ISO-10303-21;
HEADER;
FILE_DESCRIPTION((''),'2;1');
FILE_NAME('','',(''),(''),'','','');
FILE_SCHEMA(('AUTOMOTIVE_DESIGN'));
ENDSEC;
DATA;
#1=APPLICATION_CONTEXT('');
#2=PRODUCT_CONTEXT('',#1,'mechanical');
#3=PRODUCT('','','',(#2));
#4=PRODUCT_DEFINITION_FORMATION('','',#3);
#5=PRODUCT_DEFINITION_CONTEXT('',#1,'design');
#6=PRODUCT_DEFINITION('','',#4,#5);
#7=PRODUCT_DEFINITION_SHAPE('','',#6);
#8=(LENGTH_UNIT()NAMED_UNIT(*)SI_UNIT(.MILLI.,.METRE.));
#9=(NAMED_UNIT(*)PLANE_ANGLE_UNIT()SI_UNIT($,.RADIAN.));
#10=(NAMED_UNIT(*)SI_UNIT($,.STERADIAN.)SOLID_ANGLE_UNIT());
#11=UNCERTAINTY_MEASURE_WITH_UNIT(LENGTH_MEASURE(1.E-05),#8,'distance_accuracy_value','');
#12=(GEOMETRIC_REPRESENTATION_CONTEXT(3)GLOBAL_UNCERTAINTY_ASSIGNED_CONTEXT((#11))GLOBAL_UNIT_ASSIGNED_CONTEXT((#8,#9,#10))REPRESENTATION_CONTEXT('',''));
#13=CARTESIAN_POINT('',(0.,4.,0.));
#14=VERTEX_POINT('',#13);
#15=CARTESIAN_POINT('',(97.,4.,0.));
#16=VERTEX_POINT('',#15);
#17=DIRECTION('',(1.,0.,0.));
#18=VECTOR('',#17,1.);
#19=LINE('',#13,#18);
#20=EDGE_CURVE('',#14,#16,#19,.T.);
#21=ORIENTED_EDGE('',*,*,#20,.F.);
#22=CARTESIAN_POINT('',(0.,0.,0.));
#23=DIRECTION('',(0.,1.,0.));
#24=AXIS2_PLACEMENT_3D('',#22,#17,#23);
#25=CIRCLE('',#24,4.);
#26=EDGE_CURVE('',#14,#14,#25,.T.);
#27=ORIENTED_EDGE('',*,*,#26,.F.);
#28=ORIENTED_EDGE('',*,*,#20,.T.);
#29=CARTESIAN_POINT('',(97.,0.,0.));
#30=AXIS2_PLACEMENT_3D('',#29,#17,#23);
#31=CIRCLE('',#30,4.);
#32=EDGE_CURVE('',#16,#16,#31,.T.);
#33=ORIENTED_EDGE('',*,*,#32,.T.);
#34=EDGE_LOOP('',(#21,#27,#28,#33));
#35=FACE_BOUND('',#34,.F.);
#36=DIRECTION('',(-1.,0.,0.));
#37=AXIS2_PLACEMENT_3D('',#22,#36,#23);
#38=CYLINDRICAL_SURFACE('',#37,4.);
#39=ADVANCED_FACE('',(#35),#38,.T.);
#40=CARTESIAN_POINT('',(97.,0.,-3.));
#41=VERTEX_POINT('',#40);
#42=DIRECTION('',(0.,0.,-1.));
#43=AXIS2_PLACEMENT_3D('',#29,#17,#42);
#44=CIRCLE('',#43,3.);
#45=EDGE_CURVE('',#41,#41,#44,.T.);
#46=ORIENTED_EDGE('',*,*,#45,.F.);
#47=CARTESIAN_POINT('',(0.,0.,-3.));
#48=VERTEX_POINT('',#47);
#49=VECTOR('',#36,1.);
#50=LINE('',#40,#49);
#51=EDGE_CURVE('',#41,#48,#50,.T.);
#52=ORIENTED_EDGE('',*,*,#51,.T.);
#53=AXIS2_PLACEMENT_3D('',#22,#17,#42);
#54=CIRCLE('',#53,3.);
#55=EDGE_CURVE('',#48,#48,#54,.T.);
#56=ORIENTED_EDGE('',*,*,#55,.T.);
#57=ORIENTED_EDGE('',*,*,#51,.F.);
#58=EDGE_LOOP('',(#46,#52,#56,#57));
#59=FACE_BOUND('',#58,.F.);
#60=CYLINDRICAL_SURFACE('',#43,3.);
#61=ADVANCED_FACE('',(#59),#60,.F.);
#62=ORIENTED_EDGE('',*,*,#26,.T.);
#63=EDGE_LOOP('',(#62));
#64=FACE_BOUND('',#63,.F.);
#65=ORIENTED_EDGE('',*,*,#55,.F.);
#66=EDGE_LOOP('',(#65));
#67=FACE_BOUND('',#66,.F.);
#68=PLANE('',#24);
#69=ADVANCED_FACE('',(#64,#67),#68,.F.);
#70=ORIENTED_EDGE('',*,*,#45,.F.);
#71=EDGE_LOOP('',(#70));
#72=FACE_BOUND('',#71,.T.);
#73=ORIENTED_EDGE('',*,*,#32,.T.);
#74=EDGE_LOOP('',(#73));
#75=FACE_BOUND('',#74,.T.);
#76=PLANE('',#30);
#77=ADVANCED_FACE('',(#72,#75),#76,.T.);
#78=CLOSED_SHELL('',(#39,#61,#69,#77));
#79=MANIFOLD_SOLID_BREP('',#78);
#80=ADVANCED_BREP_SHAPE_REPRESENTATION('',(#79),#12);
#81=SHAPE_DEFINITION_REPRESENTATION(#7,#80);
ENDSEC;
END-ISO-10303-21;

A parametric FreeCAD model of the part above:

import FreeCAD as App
import Part
import Sketcher
Q = App.Units.Quantity

doc = App.newDocument("Part")
body = doc.addObject("PartDesign::Body", "Body")

# Sketch on YZ plane
sketch1 = doc.addObject("Sketcher::SketchObject", "Sketch")
body.addObject(sketch1)
sketch1.AttachmentSupport = (doc.YZ_Plane, [""])
sketch1.MapMode = "FlatFace"
sketch1.addGeometry(Part.Circle(App.Vector(0, 0, 0), App.Vector(0, 0, 1), 4), False)
sketch1.addConstraint(Sketcher.Constraint("Coincident", 0, 3, -1, 1))
sketch1.addConstraint(Sketcher.Constraint("Diameter", 0, Q("8 mm")))
pad1 = doc.addObject("PartDesign::Pad", "Pad")
body.addObject(pad1)
pad1.Profile = sketch1
pad1.Length = 97

# Sketch on YZ plane
sketch2 = doc.addObject("Sketcher::SketchObject", "Sketch001")
body.addObject(sketch2)
sketch2.AttachmentSupport = (doc.YZ_Plane, [""])
sketch2.MapMode = "FlatFace"
sketch2.AttachmentOffset = App.Placement(App.Vector(0, 0, 97), App.Rotation())
sketch2.addGeometry(Part.Circle(App.Vector(0, 0, 0), App.Vector(0, 0, 1), 3), False)
sketch2.addConstraint(Sketcher.Constraint("Coincident", 0, 3, -1, 1))
sketch2.addConstraint(Sketcher.Constraint("Diameter", 0, Q("6 mm")))
pocket1 = doc.addObject("PartDesign::Pocket", "Pocket")
body.addObject(pocket1)
pocket1.Profile = sketch2
pocket1.Type = "ThroughAll"

doc.recompute()
